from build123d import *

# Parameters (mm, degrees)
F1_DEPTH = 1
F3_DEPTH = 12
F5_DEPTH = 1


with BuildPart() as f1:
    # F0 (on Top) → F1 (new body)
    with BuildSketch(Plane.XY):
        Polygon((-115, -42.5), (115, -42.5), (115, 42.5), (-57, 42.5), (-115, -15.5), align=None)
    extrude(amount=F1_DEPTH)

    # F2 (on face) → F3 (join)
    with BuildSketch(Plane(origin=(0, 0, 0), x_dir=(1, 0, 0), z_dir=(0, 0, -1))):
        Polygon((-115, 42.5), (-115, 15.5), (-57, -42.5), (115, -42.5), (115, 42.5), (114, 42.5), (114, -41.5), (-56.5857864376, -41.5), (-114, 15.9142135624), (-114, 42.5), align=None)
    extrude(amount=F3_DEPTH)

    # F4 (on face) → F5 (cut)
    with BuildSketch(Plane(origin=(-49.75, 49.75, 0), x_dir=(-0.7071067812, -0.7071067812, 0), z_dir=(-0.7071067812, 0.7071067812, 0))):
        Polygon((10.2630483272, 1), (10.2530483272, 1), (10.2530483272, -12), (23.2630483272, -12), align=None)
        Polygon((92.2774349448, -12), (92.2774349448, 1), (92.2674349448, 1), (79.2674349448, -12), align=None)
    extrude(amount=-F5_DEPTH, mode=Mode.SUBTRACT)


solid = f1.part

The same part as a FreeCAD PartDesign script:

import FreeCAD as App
import Part
import Sketcher

V = App.Vector
Q = App.Units.Quantity


def add_polygon(sketch, points):
    """Adds a closed chain of lines whose ends are joined by coincident constraints."""
    first, n = sketch.GeometryCount, len(points)
    for a, b in zip(points, points[1:] + points[:1]):
        sketch.addGeometry(Part.LineSegment(App.Vector(*a, 0), App.Vector(*b, 0)), False)
    for i in range(n):
        sketch.addConstraint(Sketcher.Constraint("Coincident", first + i, 2, first + (i + 1) % n, 1))

doc = App.newDocument("Part")
body = doc.addObject("PartDesign::Body", "Body")

sketch1 = body.newObject("Sketcher::SketchObject", "Sketch")
sketch1.AttachmentSupport = (doc.getObject("XY_Plane"), [""])
sketch1.MapMode = "FlatFace"
add_polygon(sketch1, [(-115, -42.5), (115, -42.5), (115, 42.5), (-57, 42.5), (-115, -15.5)])
sketch1.addConstraint(Sketcher.Constraint("Horizontal", 0))
sketch1.addConstraint(Sketcher.Constraint("Vertical", 1))
sketch1.addConstraint(Sketcher.Constraint("Horizontal", 2))
sketch1.addConstraint(Sketcher.Constraint("Vertical", 4))
sketch1.addConstraint(Sketcher.Constraint("Symmetric", 1, 2, 4, 2, -1, 1))
sketch1.addConstraint(Sketcher.Constraint("DistanceX", 0, 1, 0, 2, 230.0))
sketch1.addConstraint(Sketcher.Constraint("DistanceX", 2, 2, 2, 1, 172.0))
sketch1.addConstraint(Sketcher.Constraint("DistanceY", 1, 1, 1, 2, 85.0))
sketch1.addConstraint(Sketcher.Constraint("DistanceY", 4, 2, 4, 1, 27.0))
pad1 = body.newObject("PartDesign::Pad", "Pad")
pad1.Profile = sketch1
pad1.Length = 1

sketch2 = body.newObject("Sketcher::SketchObject", "Sketch001")
sketch2.AttachmentSupport = (doc.getObject("XY_Plane"), [""])
sketch2.MapMode = "FlatFace"
add_polygon(sketch2, [(-115, -42.5), (-115, -15.5), (-57, 42.5), (115, 42.5), (115, -42.5), (114, -42.5), (114, 41.5), (-56.585786, 41.5), (-114, -15.914214), (-114, -42.5)])
sketch2.addConstraint(Sketcher.Constraint("Vertical", 0))
sketch2.addConstraint(Sketcher.Constraint("Horizontal", 2))
sketch2.addConstraint(Sketcher.Constraint("Vertical", 3))
sketch2.addConstraint(Sketcher.Constraint("Horizontal", 4))
sketch2.addConstraint(Sketcher.Constraint("Vertical", 5))
sketch2.addConstraint(Sketcher.Constraint("Horizontal", 6))
sketch2.addConstraint(Sketcher.Constraint("Vertical", 8))
sketch2.addConstraint(Sketcher.Constraint("Horizontal", 9))
sketch2.addConstraint(Sketcher.Constraint("Symmetric", 2, 2, 9, 2, -1, 1))
sketch2.addConstraint(Sketcher.Constraint("Symmetric", 4, 2, 8, 2, -2))
sketch2.addConstraint(Sketcher.Constraint("Parallel", 1, 7))
sketch2.addConstraint(Sketcher.Constraint("DistanceX", 2, 1, 2, 2, 172.0))
sketch2.addConstraint(Sketcher.Constraint("DistanceX", 4, 2, 4, 1, 1.0))
sketch2.addConstraint(Sketcher.Constraint("DistanceY", 0, 1, 0, 2, 27.0))
sketch2.addConstraint(Sketcher.Constraint("DistanceY", 3, 2, 3, 1, 85.0))
sketch2.addConstraint(Sketcher.Constraint("DistanceY", 5, 1, 5, 2, 84.0))
sketch2.addConstraint(Sketcher.Constraint("Angle", 1, Q("45 deg")))
sketch2.addConstraint(Sketcher.Constraint("Distance", 7, 81.195959))
pad2 = body.newObject("PartDesign::Pad", "Pad001")
pad2.Profile = sketch2
pad2.Length = 12
pad2.Reversed = True

sketch3 = body.newObject("Sketcher::SketchObject", "Sketch002")
sketch3.Placement = App.Placement(V(-49.75, 49.75, 0), App.Rotation(V(-0.707106781, -0.707106781, 0), V(0, 0, 0.999999999), V(-0.707106781, 0.707106781, 0), "ZXY"))
add_polygon(sketch3, [(10.263048, 1), (10.253048, 1), (10.253048, -12), (23.263048, -12)])
add_polygon(sketch3, [(92.277435, -12), (92.277435, 1), (92.267435, 1), (79.267435, -12)])
sketch3.addConstraint(Sketcher.Constraint("Horizontal", 0))
sketch3.addConstraint(Sketcher.Constraint("Vertical", 1))
sketch3.addConstraint(Sketcher.Constraint("Horizontal", 2))
sketch3.addConstraint(Sketcher.Constraint("Vertical", 4))
sketch3.addConstraint(Sketcher.Constraint("Horizontal", 5))
sketch3.addConstraint(Sketcher.Constraint("Horizontal", 7))
sketch3.addConstraint(Sketcher.Constraint("Perpendicular", 3, 6))
sketch3.addConstraint(Sketcher.Constraint("Horizontal", 3, 2, 4, 2))
sketch3.addConstraint(Sketcher.Constraint("Horizontal", 2, 2, 6, 2))
sketch3.addConstraint(Sketcher.Constraint("Equal", 0, 5))
sketch3.addConstraint(Sketcher.Constraint("Equal", 2, 7))
sketch3.addConstraint(Sketcher.Constraint("DistanceY", 1, 2, 1, 1, 13.0))
sketch3.addConstraint(Sketcher.Constraint("DistanceY", -1, 1, 0, 2, 1.0))
sketch3.addConstraint(Sketcher.Constraint("DistanceX", 0, 2, 0, 1, 0.01))
sketch3.addConstraint(Sketcher.Constraint("DistanceX", -1, 1, 0, 2, 10.253048))
sketch3.addConstraint(Sketcher.Constraint("DistanceX", -1, 1, 4, 2, 92.277435))
pocket1 = body.newObject("PartDesign::Pocket", "Pocket")
pocket1.Profile = sketch3
pocket1.Length = 1

doc.recompute()
